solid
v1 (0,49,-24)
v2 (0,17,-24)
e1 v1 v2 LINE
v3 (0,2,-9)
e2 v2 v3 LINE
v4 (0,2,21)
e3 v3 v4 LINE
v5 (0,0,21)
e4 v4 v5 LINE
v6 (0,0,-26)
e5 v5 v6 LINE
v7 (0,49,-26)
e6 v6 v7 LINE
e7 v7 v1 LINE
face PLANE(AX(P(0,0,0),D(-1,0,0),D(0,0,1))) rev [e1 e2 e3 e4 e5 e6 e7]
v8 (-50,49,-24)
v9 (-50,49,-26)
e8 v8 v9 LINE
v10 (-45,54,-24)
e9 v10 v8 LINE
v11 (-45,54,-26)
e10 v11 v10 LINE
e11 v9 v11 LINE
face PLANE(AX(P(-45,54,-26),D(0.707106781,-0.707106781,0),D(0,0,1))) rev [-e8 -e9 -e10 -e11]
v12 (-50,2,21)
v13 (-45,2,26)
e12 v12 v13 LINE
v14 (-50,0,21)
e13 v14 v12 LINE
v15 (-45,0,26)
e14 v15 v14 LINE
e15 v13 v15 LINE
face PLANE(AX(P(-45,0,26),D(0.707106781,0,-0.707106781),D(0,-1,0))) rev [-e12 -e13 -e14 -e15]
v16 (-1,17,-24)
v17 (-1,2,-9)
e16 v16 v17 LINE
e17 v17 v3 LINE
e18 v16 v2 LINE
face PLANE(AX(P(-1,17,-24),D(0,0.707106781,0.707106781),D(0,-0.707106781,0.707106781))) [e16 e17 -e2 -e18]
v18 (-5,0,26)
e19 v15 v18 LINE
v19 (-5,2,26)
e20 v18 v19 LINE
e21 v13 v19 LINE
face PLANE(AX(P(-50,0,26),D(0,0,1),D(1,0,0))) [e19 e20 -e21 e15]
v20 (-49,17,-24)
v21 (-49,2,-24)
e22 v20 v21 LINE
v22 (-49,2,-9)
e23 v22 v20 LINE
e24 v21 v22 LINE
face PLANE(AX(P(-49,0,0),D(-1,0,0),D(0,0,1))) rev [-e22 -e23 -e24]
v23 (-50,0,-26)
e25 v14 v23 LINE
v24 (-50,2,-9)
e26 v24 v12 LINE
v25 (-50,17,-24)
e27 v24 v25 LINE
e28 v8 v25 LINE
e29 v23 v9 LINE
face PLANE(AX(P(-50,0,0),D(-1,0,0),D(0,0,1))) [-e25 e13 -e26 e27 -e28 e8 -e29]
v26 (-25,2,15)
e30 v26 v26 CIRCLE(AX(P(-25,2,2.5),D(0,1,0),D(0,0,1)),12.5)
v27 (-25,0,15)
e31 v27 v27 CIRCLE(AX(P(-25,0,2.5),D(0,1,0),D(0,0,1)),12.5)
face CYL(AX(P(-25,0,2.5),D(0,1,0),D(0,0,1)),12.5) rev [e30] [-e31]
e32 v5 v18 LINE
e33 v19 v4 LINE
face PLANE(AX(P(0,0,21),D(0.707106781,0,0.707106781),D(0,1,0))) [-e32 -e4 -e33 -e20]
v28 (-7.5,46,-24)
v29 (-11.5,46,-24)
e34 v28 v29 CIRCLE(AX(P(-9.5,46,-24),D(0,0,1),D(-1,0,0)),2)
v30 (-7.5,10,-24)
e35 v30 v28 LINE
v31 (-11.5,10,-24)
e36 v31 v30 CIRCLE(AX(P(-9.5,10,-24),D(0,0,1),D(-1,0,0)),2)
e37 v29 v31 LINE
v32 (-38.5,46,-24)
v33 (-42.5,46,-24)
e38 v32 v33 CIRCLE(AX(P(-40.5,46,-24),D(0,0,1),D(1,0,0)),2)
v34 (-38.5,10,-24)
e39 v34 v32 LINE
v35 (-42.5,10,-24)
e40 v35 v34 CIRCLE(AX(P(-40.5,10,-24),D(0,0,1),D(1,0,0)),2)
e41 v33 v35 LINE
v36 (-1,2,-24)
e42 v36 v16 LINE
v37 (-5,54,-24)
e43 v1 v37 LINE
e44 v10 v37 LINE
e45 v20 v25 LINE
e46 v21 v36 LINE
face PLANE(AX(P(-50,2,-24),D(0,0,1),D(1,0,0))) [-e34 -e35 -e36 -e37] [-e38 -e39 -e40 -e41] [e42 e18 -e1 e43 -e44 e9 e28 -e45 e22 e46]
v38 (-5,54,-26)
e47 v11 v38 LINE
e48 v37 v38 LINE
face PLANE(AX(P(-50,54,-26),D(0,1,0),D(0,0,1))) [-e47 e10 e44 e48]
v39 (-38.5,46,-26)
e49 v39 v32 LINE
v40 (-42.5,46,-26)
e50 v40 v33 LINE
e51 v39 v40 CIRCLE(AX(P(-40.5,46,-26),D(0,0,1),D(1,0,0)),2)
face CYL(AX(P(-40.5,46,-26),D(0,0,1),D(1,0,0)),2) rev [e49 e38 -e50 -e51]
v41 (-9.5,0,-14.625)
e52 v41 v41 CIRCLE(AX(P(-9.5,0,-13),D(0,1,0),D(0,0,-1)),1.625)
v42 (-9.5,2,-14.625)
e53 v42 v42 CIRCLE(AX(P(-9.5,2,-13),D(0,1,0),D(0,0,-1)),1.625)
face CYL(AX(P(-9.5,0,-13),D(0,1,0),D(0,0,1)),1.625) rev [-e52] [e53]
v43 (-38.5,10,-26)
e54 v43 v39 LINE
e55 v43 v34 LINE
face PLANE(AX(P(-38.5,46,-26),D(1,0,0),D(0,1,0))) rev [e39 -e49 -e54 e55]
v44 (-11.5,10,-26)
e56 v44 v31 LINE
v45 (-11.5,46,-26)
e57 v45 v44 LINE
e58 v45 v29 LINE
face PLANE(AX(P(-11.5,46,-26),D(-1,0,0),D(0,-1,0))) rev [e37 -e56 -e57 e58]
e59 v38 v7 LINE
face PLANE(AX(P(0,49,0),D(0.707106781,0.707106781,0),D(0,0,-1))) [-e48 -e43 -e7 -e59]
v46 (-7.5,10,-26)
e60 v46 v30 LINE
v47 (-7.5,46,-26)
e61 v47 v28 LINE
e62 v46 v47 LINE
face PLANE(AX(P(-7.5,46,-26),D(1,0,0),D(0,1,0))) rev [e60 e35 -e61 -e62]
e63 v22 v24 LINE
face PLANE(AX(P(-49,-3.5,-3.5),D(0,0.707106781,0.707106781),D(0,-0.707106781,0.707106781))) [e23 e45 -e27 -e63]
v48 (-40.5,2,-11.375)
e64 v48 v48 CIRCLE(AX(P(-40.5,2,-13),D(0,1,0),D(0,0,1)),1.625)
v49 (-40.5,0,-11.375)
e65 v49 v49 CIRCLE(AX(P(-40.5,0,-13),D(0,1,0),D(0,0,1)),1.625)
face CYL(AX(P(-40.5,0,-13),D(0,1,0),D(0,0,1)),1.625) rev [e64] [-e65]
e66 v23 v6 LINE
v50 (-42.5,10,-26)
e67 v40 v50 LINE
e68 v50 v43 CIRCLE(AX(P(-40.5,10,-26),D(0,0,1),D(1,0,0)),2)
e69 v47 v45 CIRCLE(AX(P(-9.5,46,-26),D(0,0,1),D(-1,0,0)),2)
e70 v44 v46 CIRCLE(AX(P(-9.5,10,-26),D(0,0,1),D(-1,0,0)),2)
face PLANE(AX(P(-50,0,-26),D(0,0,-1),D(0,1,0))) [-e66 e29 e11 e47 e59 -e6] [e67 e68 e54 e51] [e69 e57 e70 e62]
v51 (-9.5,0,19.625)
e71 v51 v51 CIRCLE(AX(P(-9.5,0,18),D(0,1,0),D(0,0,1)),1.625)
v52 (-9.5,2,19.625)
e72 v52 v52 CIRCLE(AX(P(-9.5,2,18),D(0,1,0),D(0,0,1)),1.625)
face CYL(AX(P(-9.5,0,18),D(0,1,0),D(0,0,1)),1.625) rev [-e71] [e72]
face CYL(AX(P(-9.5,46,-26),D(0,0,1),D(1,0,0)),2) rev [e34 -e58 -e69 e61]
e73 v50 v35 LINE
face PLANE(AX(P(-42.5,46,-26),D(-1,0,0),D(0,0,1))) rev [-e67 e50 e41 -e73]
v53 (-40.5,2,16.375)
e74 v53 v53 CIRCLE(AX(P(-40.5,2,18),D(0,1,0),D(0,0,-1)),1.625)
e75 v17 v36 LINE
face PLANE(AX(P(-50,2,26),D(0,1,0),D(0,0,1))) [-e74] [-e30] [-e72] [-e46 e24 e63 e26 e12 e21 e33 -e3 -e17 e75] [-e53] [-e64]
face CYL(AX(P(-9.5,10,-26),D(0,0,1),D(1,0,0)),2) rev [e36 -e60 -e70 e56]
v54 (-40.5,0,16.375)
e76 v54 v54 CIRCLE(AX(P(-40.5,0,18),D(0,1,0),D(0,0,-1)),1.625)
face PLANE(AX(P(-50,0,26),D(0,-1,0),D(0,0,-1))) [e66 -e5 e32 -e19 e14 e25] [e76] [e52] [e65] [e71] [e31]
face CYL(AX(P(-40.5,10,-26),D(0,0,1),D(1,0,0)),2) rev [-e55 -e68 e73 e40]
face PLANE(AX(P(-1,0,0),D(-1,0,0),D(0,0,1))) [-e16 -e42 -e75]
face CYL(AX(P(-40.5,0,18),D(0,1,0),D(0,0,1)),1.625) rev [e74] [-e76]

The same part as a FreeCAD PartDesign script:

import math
import FreeCAD as App
import Part
import Sketcher
Q = App.Units.Quantity


def edges_at(feature, points):
    """Names of the edges that pass closest to the given points."""
    edges = feature.Shape.Edges
    near = lambda p: min(range(len(edges)), key=lambda i: edges[i].distToShape(Part.Vertex(*p))[0])
    return sorted({f"Edge{near(p) + 1}" for p in points})


def add_polygon(sketch, points):
    """Adds a closed chain of lines whose ends are joined by coincident constraints."""
    first, n = sketch.GeometryCount, len(points)
    for a, b in zip(points, points[1:] + points[:1]):
        sketch.addGeometry(Part.LineSegment(App.Vector(*a, 0), App.Vector(*b, 0)), False)
    for i in range(n):
        sketch.addConstraint(Sketcher.Constraint("Coincident", first + i, 2, first + (i + 1) % n, 1))

doc = App.newDocument("Part")
body = doc.addObject("PartDesign::Body", "Body")

sketch1 = body.newObject("Sketcher::SketchObject", "Sketch")
sketch1.AttachmentSupport = (doc.getObject("YZ_Plane"), [""])
sketch1.MapMode = "FlatFace"
add_polygon(sketch1, [(0, 26), (0, -26), (54, -26), (54, -24), (2, -24), (2, 26)])
sketch1.addConstraint([
    Sketcher.Constraint("Vertical", 0),
    Sketcher.Constraint("Horizontal", 1),
    Sketcher.Constraint("Vertical", 2),
    Sketcher.Constraint("Horizontal", 3),
    Sketcher.Constraint("Vertical", 4),
    Sketcher.Constraint("Horizontal", 5),
    Sketcher.Constraint("Symmetric", 0, 2, 5, 2, -1, 1),
    Sketcher.Constraint("Equal", 3, 0),
    Sketcher.Constraint("Equal", 5, 2),
    Sketcher.Constraint("DistanceX", 1, 1, 1, 2, Q("54 mm")),
    Sketcher.Constraint("DistanceX", 3, 2, 3, 1, Q("52 mm")),
])
pad1 = body.newObject("PartDesign::Pad", "Pad")
pad1.Profile = sketch1
pad1.Length = 50
pad1.Reversed = True
doc.recompute()

chamfer = body.newObject("PartDesign::Chamfer", "Chamfer")
chamfer.Base = (pad1, edges_at(pad1, [
    (-50, 54, -25),
    (-50, 1, 26),
    (0, 54, -25),
    (0, 1, 26),
]))
chamfer.Size = 5

sketch2 = body.newObject("Sketcher::SketchObject", "Sketch001")
sketch2.AttachmentSupport = (doc.getObject("XZ_Plane"), [""])
sketch2.MapMode = "FlatFace"
sketch2.AttachmentOffset = App.Placement(App.Vector(0, 0, -2), App.Rotation())
sketch2.addGeometry([
    Part.Circle(App.Vector(-40.5, -13, 0), App.Vector(0, 0, 1), 1.625),
    Part.Circle(App.Vector(-9.5, -13, 0), App.Vector(0, 0, 1), 1.625),
    Part.Circle(App.Vector(-9.5, 18, 0), App.Vector(0, 0, 1), 1.625),
    Part.Circle(App.Vector(-40.5, 18, 0), App.Vector(0, 0, 1), 1.625),
    Part.Circle(App.Vector(-25, 2.5, 0), App.Vector(0, 0, 1), 12.5),
], False)
sketch2.addConstraint([
    Sketcher.Constraint("Equal", 0, 1),
    Sketcher.Constraint("Equal", 1, 2),
    Sketcher.Constraint("Equal", 2, 3),
    Sketcher.Constraint("Horizontal", 0, 3, 1, 3),
    Sketcher.Constraint("Horizontal", 2, 3, 3, 3),
    Sketcher.Constraint("Vertical", 1, 3, 2, 3),
    Sketcher.Constraint("Vertical", 0, 3, 3, 3),
    Sketcher.Constraint("Diameter", 4, Q("25 mm")),
    Sketcher.Constraint("Diameter", 0, Q("3.25 mm")),
    Sketcher.Constraint("DistanceY", 0, 3, -1, 1, Q("13 mm")),
    Sketcher.Constraint("DistanceY", -1, 1, 2, 3, Q("18 mm")),
    Sketcher.Constraint("DistanceX", 4, 3, -1, 1, Q("25 mm")),
    Sketcher.Constraint("DistanceX", 0, 3, 1, 3, Q("31 mm")),
    Sketcher.Constraint("DistanceX", 0, 3, -1, 1, Q("40.5 mm")),
    Sketcher.Constraint("DistanceY", -1, 1, 4, 3, Q("2.5 mm")),
])
pocket1 = body.newObject("PartDesign::Pocket", "Pocket")
pocket1.Profile = sketch2
pocket1.Type = "ThroughAll"
pocket1.Reversed = True

sketch3 = body.newObject("Sketcher::SketchObject", "Sketch002")
sketch3.AttachmentSupport = (doc.getObject("XY_Plane"), [""])
sketch3.MapMode = "FlatFace"
sketch3.AttachmentOffset = App.Placement(App.Vector(0, 0, -24), App.Rotation())
sketch3.addGeometry([
    Part.LineSegment(App.Vector(-38.5, 10, 0), App.Vector(-38.5, 46, 0)),
    Part.ArcOfCircle(Part.Circle(App.Vector(-40.5, 46, 0), App.Vector(0, 0, 1), 2), math.radians(0), math.radians(180)),
    Part.LineSegment(App.Vector(-42.5, 46, 0), App.Vector(-42.5, 10, 0)),
    Part.ArcOfCircle(Part.Circle(App.Vector(-40.5, 10, 0), App.Vector(0, 0, 1), 2), math.radians(180), math.radians(360)),
    Part.LineSegment(App.Vector(-11.5, 46, 0), App.Vector(-11.5, 10, 0)),
    Part.ArcOfCircle(Part.Circle(App.Vector(-9.5, 10, 0), App.Vector(0, 0, 1), 2), math.radians(180), math.radians(360)),
    Part.LineSegment(App.Vector(-7.5, 10, 0), App.Vector(-7.5, 46, 0)),
    Part.ArcOfCircle(Part.Circle(App.Vector(-9.5, 46, 0), App.Vector(0, 0, 1), 2), math.radians(0), math.radians(180)),
], False)
sketch3.addConstraint([
    Sketcher.Constraint("Tangent", 0, 2, 1, 1),
    Sketcher.Constraint("Tangent", 1, 2, 2, 1),
    Sketcher.Constraint("Tangent", 2, 2, 3, 1),
    Sketcher.Constraint("Tangent", 3, 2, 0, 1),
    Sketcher.Constraint("Tangent", 4, 2, 5, 1),
    Sketcher.Constraint("Tangent", 5, 2, 6, 1),
    Sketcher.Constraint("Tangent", 6, 2, 7, 1),
    Sketcher.Constraint("Tangent", 7, 2, 4, 1),
    Sketcher.Constraint("Vertical", 0),
    Sketcher.Constraint("Vertical", 2),
    Sketcher.Constraint("Vertical", 4),
    Sketcher.Constraint("Vertical", 6),
    Sketcher.Constraint("Equal", 3, 5),
    Sketcher.Constraint("Horizontal", 3, 3, 5, 3),
    Sketcher.Constraint("Horizontal", 1, 3, 7, 3),
    Sketcher.Constraint("Radius", 1, Q("2 mm")),
    Sketcher.Constraint("DistanceY", 0, 1, 0, 2, Q("36 mm")),
    Sketcher.Constraint("DistanceY", -1, 1, 1, 3, Q("46 mm")),
    Sketcher.Constraint("DistanceX", 3, 3, 5, 3, Q("31 mm")),
    Sketcher.Constraint("DistanceX", 1, 3, -1, 1, Q("40.5 mm")),
])
pocket2 = body.newObject("PartDesign::Pocket", "Pocket001")
pocket2.Profile = sketch3
pocket2.Type = "ThroughAll"

sketch4 = body.newObject("Sketcher::SketchObject", "Sketch003")
sketch4.AttachmentSupport = (doc.getObject("YZ_Plane"), [""])
sketch4.MapMode = "FlatFace"
add_polygon(sketch4, [(2, -9), (2, -24), (17, -24)])
sketch4.addConstraint([
    Sketcher.Constraint("Vertical", 0),
    Sketcher.Constraint("Horizontal", 1),
    Sketcher.Constraint("Equal", 1, 0),
    Sketcher.Constraint("DistanceX", 1, 1, 1, 2, Q("15 mm")),
    Sketcher.Constraint("DistanceX", -1, 1, 0, 2, Q("2 mm")),
    Sketcher.Constraint("DistanceY", 0, 2, -1, 1, Q("24 mm")),
])
pad2 = body.newObject("PartDesign::Pad", "Pad001")
pad2.Profile = sketch4
pad2.Length = 1
pad2.Reversed = True

sketch5 = body.newObject("Sketcher::SketchObject", "Sketch004")
sketch5.AttachmentSupport = (doc.getObject("YZ_Plane"), [""])
sketch5.MapMode = "FlatFace"
sketch5.AttachmentOffset = App.Placement(App.Vector(0, 0, -50), App.Rotation())
add_polygon(sketch5, [(2, -9), (2, -24), (17, -24)])
sketch5.addConstraint([
    Sketcher.Constraint("Vertical", 0),
    Sketcher.Constraint("Horizontal", 1),
    Sketcher.Constraint("Equal", 1, 0),
    Sketcher.Constraint("DistanceX", 1, 1, 1, 2, Q("15 mm")),
    Sketcher.Constraint("DistanceX", -1, 1, 0, 2, Q("2 mm")),
    Sketcher.Constraint("DistanceY", 0, 2, -1, 1, Q("24 mm")),
])
pad3 = body.newObject("PartDesign::Pad", "Pad002")
pad3.Profile = sketch5
pad3.Length = 1

doc.recompute()
